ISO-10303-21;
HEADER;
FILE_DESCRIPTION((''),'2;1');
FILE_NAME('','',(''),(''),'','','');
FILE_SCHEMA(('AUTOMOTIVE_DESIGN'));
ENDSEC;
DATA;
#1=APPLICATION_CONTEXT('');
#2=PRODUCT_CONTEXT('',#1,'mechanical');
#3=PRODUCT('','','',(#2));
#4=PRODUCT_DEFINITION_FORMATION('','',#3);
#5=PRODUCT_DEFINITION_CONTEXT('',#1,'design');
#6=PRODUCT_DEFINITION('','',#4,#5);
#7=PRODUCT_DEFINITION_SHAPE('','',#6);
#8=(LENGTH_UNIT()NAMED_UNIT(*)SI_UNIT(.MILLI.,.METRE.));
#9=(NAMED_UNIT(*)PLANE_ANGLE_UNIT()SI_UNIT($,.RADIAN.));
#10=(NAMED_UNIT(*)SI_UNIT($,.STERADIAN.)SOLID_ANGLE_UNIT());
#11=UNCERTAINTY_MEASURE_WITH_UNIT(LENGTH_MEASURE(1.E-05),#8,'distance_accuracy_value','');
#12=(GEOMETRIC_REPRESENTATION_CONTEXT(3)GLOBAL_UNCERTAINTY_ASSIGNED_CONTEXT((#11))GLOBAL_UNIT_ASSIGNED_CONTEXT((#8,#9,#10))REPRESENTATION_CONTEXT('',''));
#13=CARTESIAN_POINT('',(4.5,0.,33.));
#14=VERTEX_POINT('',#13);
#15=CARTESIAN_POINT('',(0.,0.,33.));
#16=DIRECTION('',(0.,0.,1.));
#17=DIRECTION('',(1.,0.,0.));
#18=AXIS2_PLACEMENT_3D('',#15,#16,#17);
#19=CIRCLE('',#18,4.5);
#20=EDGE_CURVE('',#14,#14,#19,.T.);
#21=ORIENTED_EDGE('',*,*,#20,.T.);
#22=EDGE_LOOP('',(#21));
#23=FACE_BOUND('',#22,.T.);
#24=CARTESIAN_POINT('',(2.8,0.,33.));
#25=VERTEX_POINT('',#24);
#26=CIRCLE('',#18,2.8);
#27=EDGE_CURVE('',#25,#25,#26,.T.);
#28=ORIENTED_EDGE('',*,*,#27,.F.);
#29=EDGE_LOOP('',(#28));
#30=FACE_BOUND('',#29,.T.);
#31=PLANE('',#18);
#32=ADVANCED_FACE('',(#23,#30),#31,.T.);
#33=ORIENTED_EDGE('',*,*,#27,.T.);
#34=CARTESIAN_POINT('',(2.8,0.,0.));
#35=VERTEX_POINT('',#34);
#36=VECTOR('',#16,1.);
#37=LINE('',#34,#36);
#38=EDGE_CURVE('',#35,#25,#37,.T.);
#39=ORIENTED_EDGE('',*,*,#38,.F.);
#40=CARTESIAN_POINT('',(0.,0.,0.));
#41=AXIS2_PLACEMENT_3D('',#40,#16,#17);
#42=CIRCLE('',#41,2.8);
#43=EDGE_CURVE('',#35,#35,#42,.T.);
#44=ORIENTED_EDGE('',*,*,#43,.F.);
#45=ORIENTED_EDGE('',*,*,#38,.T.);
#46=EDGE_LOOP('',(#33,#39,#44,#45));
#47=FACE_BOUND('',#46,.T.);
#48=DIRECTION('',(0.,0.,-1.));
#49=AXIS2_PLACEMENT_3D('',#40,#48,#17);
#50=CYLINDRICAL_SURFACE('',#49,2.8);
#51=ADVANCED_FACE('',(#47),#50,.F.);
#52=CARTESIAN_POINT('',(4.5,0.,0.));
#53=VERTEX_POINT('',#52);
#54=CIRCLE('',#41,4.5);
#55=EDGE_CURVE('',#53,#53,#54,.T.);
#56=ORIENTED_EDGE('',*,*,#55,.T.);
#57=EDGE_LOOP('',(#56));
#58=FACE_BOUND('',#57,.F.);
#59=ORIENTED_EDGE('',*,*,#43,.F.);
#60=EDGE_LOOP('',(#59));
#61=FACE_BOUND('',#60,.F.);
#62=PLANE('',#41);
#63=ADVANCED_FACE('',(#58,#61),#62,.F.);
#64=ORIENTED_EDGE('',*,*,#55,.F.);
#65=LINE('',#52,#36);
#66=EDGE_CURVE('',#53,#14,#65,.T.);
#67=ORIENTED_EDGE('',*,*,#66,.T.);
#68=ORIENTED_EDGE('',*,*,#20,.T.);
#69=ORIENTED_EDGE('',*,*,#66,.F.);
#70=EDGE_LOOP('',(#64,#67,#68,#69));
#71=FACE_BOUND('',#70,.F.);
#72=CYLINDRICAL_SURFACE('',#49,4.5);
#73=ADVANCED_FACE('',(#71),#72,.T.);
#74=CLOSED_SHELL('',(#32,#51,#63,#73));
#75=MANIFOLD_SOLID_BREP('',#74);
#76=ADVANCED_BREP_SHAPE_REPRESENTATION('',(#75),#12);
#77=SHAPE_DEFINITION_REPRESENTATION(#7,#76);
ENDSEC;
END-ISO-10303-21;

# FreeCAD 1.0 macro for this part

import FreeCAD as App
import Part
import Sketcher

V = App.Vector
Q = App.Units.Quantity

doc = App.newDocument("Part")
params = doc.addObject("Spreadsheet::Sheet", "Params")
for row, (alias, value) in enumerate([
    ("sketch1_diameter", "9 mm"),
    ("sketch1_diameter2", "5.6 mm"),
    ("pad1_length", "33 mm"),
], start=1):
    params.set(f"A{row}", alias)
    params.set(f"B{row}", "=" + value)
    params.setAlias(f"B{row}", alias)

body = doc.addObject("PartDesign::Body", "Body")

# Sketch on XY plane
sketch1 = body.newObject("Sketcher::SketchObject", "Sketch")
sketch1.AttachmentSupport = (doc.getObject("XY_Plane"), [""])
sketch1.MapMode = "FlatFace"
sketch1.addGeometry(Part.Circle(V(0, 0, 0), V(0, 0, 1), 4.5), False)
sketch1.addGeometry(Part.Circle(V(0, 0, 0), V(0, 0, 1), 2.8), False)
sketch1.addConstraint(Sketcher.Constraint("Coincident", 0, 3, -1, 1))
sketch1.addConstraint(Sketcher.Constraint("Coincident", 1, 3, -1, 1))
sketch1.addConstraint(Sketcher.Constraint("Diameter", 0, Q("9 mm")))
sketch1.addConstraint(Sketcher.Constraint("Diameter", 1, Q("5.6 mm")))
sketch1.setExpression("Constraints[2]", "Params.sketch1_diameter")
sketch1.setExpression("Constraints[3]", "Params.sketch1_diameter2")
pad1 = body.newObject("PartDesign::Pad", "Pad")
pad1.Profile = sketch1
pad1.setExpression("Length", "Params.pad1_length")

doc.recompute()
